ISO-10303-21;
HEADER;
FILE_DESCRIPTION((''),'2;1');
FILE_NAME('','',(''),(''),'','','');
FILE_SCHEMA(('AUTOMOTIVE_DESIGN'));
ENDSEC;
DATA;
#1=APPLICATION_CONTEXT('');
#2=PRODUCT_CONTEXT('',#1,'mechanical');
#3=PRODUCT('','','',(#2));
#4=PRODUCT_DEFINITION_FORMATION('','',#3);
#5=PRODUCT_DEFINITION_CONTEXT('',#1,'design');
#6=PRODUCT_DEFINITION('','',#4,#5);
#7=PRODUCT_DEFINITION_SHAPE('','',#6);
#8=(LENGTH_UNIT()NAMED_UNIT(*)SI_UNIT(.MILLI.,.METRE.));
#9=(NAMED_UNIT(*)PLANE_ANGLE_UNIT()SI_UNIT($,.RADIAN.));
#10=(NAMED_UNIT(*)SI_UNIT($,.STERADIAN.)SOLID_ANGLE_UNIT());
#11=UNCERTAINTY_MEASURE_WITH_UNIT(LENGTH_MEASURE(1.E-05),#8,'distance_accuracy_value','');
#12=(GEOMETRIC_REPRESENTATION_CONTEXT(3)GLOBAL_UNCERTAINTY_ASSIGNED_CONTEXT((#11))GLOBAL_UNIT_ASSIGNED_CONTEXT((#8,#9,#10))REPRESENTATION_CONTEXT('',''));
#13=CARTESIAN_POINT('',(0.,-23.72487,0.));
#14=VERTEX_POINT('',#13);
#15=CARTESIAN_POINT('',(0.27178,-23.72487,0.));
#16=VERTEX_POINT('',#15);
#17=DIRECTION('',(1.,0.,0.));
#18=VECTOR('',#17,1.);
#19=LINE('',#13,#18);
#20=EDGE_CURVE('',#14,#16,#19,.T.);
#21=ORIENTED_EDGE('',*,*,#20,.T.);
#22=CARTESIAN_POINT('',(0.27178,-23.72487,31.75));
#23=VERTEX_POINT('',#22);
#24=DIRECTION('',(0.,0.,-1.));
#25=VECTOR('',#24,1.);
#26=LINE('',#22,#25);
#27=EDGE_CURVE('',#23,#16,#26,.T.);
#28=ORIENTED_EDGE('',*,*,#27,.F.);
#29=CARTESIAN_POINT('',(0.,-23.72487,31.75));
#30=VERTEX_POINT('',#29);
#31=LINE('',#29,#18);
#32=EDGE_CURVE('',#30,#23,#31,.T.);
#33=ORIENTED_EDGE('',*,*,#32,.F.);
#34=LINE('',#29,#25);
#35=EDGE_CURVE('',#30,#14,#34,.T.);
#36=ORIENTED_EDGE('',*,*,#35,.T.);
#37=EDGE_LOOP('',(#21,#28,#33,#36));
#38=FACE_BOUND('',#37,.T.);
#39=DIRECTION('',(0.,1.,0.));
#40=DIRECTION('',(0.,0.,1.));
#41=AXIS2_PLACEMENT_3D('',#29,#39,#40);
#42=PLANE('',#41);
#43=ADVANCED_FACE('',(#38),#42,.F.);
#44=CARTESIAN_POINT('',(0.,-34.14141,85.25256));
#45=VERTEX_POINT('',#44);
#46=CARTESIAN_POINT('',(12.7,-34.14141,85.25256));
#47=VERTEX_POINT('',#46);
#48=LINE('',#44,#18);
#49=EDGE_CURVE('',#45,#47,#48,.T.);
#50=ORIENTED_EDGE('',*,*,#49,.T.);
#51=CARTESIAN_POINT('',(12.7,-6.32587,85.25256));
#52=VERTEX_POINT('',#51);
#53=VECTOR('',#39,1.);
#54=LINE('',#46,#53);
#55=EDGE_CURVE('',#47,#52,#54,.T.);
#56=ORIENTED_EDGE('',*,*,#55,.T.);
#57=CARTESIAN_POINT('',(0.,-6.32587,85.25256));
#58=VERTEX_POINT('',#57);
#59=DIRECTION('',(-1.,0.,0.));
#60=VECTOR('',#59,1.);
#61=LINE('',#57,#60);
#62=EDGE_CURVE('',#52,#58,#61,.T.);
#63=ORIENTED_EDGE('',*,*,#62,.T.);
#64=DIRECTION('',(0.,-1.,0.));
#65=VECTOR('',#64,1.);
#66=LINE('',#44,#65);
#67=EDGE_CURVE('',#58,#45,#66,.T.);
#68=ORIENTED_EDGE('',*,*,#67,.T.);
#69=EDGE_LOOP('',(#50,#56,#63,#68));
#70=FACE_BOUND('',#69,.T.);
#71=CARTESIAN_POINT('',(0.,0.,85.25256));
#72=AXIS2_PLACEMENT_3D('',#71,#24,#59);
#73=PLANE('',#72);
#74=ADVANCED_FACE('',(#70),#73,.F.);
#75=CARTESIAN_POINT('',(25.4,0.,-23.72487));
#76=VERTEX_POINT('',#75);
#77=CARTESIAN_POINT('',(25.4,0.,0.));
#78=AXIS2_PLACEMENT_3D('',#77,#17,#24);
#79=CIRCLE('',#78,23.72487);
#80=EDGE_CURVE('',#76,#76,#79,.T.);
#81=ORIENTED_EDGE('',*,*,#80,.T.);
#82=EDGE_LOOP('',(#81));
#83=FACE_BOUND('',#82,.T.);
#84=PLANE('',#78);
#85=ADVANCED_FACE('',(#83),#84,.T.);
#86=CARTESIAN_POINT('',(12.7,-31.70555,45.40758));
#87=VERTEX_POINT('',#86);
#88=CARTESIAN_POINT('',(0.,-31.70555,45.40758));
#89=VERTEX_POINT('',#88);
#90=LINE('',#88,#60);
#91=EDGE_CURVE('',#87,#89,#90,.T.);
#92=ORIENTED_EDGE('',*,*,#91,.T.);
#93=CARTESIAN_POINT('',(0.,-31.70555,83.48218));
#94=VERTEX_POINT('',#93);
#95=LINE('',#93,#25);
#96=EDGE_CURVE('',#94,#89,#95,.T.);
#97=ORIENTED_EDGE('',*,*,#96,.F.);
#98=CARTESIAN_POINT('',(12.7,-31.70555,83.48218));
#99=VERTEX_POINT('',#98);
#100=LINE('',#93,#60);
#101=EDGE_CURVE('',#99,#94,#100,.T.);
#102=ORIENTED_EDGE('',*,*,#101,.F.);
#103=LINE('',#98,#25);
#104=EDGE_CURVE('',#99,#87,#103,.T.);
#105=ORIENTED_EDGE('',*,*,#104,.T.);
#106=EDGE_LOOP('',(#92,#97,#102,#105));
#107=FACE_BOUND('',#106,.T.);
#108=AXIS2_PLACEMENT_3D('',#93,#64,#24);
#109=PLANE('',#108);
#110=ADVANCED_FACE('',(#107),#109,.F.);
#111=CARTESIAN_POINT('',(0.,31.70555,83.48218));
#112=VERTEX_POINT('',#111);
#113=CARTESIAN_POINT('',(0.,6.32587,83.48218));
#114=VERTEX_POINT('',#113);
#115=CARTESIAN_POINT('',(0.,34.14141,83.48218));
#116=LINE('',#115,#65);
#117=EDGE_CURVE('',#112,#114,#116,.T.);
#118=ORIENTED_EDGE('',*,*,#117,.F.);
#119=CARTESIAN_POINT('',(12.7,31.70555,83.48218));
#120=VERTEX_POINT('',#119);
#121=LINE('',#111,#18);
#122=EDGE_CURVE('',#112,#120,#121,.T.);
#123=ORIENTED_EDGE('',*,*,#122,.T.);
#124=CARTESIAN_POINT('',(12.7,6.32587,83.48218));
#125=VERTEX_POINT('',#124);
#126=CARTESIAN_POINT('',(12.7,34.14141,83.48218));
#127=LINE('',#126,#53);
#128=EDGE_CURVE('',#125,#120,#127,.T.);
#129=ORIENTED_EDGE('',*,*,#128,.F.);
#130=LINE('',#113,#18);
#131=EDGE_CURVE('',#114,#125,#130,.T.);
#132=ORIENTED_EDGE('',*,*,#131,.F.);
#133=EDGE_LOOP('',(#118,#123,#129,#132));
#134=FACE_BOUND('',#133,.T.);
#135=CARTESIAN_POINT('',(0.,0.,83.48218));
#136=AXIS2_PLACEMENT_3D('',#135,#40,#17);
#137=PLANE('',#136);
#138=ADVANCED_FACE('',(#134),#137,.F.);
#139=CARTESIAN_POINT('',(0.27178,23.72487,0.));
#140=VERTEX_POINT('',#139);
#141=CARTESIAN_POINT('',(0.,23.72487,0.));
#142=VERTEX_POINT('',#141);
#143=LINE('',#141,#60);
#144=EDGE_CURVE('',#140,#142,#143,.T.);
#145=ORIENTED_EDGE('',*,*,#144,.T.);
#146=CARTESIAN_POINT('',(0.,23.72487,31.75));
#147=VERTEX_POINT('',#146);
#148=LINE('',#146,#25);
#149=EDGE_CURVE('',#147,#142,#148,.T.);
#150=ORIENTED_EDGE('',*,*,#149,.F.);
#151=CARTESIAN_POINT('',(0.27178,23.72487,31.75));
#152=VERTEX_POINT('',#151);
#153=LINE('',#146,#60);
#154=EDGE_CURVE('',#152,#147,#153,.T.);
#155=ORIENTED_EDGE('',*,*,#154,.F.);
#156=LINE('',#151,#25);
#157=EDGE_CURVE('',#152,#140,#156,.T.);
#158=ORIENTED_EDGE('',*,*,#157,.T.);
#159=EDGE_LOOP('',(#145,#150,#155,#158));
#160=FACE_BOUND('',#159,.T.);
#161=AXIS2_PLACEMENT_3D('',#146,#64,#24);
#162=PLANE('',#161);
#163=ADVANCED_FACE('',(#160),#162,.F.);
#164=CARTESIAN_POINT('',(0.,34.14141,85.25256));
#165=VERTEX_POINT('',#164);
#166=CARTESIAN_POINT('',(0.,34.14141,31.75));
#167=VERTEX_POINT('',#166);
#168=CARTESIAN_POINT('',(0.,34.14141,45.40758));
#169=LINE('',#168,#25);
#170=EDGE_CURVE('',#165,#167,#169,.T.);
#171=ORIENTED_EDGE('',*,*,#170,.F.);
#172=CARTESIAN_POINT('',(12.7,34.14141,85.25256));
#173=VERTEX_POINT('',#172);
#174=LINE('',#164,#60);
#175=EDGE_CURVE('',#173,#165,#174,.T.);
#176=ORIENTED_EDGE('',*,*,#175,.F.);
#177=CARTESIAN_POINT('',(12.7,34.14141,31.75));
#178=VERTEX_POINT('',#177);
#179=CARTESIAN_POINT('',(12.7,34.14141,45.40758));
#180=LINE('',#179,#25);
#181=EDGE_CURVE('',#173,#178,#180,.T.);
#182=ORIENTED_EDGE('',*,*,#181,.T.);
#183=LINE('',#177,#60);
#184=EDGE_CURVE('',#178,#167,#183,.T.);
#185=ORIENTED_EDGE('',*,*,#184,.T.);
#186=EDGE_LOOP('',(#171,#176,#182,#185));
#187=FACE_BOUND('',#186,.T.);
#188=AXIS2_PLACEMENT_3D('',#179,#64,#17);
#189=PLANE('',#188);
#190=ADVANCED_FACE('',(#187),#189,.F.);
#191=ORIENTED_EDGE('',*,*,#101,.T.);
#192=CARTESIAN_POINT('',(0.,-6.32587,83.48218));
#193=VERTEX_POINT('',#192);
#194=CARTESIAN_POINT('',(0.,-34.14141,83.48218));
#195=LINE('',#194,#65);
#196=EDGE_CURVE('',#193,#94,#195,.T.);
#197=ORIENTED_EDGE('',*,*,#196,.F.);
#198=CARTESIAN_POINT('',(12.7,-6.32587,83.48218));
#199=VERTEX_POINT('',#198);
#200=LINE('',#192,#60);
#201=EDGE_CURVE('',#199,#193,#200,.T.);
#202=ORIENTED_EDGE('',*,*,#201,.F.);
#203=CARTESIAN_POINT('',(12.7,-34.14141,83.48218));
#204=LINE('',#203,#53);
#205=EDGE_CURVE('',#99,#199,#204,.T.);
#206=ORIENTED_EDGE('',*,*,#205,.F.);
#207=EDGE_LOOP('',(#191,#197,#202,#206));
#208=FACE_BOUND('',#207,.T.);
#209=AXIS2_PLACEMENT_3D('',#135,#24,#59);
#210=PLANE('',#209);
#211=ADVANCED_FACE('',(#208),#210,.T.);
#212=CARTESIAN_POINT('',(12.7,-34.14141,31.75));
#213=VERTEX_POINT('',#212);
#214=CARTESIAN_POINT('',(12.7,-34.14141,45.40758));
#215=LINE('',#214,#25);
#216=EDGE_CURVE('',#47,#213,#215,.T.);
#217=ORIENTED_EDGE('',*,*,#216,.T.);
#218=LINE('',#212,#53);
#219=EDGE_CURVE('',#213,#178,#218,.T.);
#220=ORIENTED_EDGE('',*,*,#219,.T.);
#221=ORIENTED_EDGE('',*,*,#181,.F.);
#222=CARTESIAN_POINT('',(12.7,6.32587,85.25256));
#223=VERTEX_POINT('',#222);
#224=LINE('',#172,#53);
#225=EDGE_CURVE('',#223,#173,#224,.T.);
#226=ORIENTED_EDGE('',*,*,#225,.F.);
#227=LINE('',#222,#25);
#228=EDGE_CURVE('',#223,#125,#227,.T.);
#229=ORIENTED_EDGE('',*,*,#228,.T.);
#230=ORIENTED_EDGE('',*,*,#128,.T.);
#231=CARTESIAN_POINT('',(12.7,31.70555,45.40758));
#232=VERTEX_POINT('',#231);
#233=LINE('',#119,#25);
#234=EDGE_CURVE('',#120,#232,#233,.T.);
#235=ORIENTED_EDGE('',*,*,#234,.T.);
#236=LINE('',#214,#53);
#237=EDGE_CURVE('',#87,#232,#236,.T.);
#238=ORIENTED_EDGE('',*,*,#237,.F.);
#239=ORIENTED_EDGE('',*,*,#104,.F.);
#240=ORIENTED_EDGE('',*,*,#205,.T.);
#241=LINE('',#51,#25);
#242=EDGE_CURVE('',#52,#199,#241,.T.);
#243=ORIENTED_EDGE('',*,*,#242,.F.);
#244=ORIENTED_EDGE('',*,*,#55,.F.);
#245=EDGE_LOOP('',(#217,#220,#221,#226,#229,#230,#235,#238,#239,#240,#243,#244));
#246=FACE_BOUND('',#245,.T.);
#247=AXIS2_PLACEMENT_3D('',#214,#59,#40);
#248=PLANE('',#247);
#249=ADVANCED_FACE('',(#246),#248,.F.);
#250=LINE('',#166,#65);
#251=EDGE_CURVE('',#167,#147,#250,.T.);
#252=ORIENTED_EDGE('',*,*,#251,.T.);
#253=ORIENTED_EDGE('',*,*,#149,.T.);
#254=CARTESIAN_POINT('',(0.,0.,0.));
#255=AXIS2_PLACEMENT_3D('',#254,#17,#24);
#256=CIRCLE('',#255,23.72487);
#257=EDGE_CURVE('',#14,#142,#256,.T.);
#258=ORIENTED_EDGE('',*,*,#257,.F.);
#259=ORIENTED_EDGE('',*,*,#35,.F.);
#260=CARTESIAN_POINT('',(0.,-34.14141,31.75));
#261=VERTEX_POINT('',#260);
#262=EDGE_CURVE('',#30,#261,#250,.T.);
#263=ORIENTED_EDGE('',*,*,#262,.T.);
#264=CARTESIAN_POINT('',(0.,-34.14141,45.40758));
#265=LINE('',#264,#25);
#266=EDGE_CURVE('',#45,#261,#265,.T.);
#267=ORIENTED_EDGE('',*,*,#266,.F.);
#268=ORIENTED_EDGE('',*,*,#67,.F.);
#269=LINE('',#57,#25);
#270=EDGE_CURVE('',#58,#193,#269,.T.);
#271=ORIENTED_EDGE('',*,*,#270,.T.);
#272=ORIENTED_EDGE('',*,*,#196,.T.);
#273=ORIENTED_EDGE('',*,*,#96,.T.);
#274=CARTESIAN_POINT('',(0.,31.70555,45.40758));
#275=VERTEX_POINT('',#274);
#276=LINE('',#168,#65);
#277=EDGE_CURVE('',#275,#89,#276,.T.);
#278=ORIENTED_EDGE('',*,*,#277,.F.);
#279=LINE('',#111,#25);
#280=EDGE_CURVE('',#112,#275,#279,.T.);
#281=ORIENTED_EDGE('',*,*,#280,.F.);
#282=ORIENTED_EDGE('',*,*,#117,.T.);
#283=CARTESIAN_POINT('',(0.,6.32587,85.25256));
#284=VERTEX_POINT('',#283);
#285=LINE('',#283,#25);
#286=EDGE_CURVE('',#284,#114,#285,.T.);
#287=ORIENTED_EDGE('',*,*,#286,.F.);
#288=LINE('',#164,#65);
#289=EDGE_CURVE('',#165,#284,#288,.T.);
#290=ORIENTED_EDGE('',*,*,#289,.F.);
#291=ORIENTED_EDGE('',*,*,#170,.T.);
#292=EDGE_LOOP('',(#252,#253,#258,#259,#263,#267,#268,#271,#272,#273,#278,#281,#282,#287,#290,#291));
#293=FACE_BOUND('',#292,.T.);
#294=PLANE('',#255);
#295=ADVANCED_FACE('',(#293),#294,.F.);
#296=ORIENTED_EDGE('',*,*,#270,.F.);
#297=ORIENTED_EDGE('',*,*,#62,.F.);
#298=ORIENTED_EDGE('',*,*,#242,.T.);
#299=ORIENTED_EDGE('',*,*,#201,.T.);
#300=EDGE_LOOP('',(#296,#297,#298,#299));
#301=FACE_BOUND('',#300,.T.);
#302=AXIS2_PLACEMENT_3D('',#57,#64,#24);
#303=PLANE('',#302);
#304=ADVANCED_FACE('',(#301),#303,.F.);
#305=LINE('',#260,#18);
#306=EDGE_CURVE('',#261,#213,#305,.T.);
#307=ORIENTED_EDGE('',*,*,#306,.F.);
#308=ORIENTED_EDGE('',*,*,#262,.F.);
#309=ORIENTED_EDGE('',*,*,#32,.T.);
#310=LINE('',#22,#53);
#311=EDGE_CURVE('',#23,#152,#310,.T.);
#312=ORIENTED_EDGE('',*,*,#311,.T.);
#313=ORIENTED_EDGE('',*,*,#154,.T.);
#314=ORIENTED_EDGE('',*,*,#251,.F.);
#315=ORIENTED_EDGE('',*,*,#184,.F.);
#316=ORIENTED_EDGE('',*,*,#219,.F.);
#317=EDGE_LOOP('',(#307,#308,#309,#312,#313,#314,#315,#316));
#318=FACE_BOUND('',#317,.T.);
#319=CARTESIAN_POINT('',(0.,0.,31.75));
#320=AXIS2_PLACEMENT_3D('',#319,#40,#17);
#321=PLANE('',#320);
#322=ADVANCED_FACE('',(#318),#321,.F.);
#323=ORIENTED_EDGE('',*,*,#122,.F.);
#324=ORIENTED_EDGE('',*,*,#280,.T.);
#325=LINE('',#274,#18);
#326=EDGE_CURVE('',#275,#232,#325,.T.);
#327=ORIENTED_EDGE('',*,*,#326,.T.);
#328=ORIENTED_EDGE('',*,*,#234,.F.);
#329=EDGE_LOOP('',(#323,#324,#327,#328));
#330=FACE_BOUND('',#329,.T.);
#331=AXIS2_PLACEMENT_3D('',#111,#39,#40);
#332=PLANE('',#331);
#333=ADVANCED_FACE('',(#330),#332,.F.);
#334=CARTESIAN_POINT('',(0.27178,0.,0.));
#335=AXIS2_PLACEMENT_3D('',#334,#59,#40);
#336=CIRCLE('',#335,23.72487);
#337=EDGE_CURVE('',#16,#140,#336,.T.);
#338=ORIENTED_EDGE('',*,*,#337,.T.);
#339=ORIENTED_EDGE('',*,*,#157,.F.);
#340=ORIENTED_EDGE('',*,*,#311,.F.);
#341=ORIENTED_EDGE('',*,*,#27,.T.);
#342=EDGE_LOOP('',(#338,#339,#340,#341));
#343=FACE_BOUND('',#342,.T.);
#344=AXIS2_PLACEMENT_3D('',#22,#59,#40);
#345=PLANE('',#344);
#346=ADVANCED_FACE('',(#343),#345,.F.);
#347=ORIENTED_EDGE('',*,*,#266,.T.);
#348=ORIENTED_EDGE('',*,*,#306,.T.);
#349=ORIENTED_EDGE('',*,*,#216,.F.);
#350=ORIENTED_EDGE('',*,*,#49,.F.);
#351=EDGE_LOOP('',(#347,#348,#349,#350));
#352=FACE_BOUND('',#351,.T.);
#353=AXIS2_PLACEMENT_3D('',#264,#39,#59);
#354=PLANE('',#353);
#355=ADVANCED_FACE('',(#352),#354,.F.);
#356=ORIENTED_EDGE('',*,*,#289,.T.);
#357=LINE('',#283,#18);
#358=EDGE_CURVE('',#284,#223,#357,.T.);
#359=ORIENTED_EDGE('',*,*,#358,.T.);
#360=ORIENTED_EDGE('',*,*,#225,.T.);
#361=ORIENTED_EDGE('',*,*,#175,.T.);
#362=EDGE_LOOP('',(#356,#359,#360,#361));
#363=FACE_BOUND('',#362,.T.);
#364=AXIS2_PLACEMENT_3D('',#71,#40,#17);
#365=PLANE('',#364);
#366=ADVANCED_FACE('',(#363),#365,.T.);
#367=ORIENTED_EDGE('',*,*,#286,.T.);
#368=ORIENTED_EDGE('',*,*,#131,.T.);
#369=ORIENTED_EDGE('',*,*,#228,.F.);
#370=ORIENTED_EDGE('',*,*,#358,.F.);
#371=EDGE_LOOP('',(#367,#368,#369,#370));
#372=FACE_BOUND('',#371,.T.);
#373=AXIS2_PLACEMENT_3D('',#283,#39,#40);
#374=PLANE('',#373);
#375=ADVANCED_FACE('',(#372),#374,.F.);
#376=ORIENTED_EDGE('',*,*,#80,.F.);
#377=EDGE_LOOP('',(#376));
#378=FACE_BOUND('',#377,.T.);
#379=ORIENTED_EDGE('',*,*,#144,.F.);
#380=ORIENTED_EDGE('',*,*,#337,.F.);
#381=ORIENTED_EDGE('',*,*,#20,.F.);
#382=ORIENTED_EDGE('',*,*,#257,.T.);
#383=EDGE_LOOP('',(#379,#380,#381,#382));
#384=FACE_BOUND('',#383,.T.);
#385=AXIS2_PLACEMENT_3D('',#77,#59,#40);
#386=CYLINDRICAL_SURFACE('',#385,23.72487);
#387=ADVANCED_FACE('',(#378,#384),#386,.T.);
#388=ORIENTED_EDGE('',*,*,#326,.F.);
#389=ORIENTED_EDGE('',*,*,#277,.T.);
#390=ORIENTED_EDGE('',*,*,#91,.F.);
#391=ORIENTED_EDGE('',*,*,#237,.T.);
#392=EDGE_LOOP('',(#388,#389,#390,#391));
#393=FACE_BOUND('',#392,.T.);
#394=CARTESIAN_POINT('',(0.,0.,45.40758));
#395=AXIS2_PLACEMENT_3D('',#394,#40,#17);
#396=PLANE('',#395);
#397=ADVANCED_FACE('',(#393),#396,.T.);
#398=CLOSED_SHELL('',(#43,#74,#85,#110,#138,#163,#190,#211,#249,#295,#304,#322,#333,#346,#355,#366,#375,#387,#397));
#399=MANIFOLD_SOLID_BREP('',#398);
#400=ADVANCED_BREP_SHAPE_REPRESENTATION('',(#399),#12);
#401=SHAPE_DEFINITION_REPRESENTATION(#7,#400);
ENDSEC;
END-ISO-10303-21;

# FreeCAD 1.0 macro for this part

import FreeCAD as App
import Part
import Sketcher
Q = App.Units.Quantity


def add_polygon(sketch, points):
    """Adds a closed chain of lines whose ends are joined by coincident constraints."""
    first, n = sketch.GeometryCount, len(points)
    for a, b in zip(points, points[1:] + points[:1]):
        sketch.addGeometry(Part.LineSegment(App.Vector(*a, 0), App.Vector(*b, 0)), False)
    for i in range(n):
        sketch.addConstraint(Sketcher.Constraint("Coincident", first + i, 2, first + (i + 1) % n, 1))

doc = App.newDocument("Part")
body = doc.addObject("PartDesign::Body", "Body")

sketch1 = body.newObject("Sketcher::SketchObject", "Sketch")
sketch1.AttachmentSupport = (doc.getObject("YZ_Plane"), [""])
sketch1.MapMode = "FlatFace"
sketch1.addGeometry(Part.Circle(App.Vector(0, 0, 0), App.Vector(0, 0, 1), 24), False)
sketch1.addConstraint(Sketcher.Constraint("Coincident", 0, 3, -1, 1))
sketch1.addConstraint(Sketcher.Constraint("Diameter", 0, Q("1.8681 in")))
pad1 = body.newObject("PartDesign::Pad", "Pad")
pad1.Profile = sketch1
pad1.Length = Q("1 in")

sketch2 = body.newObject("Sketcher::SketchObject", "Sketch001")
sketch2.AttachmentSupport = (doc.getObject("XY_Plane"), [""])
sketch2.MapMode = "FlatFace"
add_polygon(sketch2, [(0, -23.72), (0.27, -23.72), (0.27, 23.72), (0, 23.72)])
sketch2.addConstraint(Sketcher.Constraint("Horizontal", 0))
sketch2.addConstraint(Sketcher.Constraint("Vertical", 1))
sketch2.addConstraint(Sketcher.Constraint("Horizontal", 2))
sketch2.addConstraint(Sketcher.Constraint("Vertical", 3))
sketch2.addConstraint(Sketcher.Constraint("Symmetric", 2, 2, 3, 2, -1, 1))
sketch2.addConstraint(Sketcher.Constraint("DistanceX", 0, 1, 0, 2, Q("0.0107 in")))
sketch2.addConstraint(Sketcher.Constraint("DistanceY", 1, 1, 1, 2, Q("1.8681 in")))
pad2 = body.newObject("PartDesign::Pad", "Pad001")
pad2.Profile = sketch2
pad2.Length = Q("1.25 in")

sketch3 = body.newObject("Sketcher::SketchObject", "Sketch002")
sketch3.AttachmentSupport = (doc.getObject("XY_Plane"), [""])
sketch3.MapMode = "FlatFace"
sketch3.AttachmentOffset = App.Placement(App.Vector(0, 0, 1.25 * 25.4), App.Rotation())
add_polygon(sketch3, [(0, 34), (0, -34), (13, -34), (13, 34)])
sketch3.addConstraint(Sketcher.Constraint("Vertical", 0))
sketch3.addConstraint(Sketcher.Constraint("Horizontal", 1))
sketch3.addConstraint(Sketcher.Constraint("Vertical", 2))
sketch3.addConstraint(Sketcher.Constraint("Horizontal", 3))
sketch3.addConstraint(Sketcher.Constraint("Symmetric", 0, 2, 3, 2, -1, 1))
sketch3.addConstraint(Sketcher.Constraint("DistanceX", 1, 1, 1, 2, Q("0.5 in")))
sketch3.addConstraint(Sketcher.Constraint("DistanceY", 0, 2, 0, 1, Q("2.6883 in")))
pad3 = body.newObject("PartDesign::Pad", "Pad002")
pad3.Profile = sketch3
pad3.Length = Q("0.5377 in")

sketch4 = body.newObject("Sketcher::SketchObject", "Sketch003")
sketch4.AttachmentSupport = (doc.getObject("XY_Plane"), [""])
sketch4.MapMode = "FlatFace"
sketch4.AttachmentOffset = App.Placement(App.Vector(0, 0, 1.7877 * 25.4), App.Rotation())
add_polygon(sketch4, [(0, 34.1), (0, 31.7), (12.7, 31.7), (12.7, 34.1)])
add_polygon(sketch4, [(0, -31.7), (0, -34.1), (12.7, -34.1), (12.7, -31.7)])
sketch4.addConstraint(Sketcher.Constraint("Vertical", 0))
sketch4.addConstraint(Sketcher.Constraint("Horizontal", 1))
sketch4.addConstraint(Sketcher.Constraint("Vertical", 2))
sketch4.addConstraint(Sketcher.Constraint("Horizontal", 3))
sketch4.addConstraint(Sketcher.Constraint("Vertical", 4))
sketch4.addConstraint(Sketcher.Constraint("Horizontal", 5))
sketch4.addConstraint(Sketcher.Constraint("Vertical", 6))
sketch4.addConstraint(Sketcher.Constraint("Horizontal", 7))
sketch4.addConstraint(Sketcher.Constraint("Symmetric", 3, 2, 4, 2, -1, 1))
sketch4.addConstraint(Sketcher.Constraint("Symmetric", 1, 2, 6, 2, -1))
sketch4.addConstraint(Sketcher.Constraint("PointOnObject", 0, 2, -2))
sketch4.addConstraint(Sketcher.Constraint("DistanceX", 1, 1, 1, 2, Q("0.5 in")))
sketch4.addConstraint(Sketcher.Constraint("DistanceY", 0, 2, 0, 1, Q("0.0959 in")))
sketch4.addConstraint(Sketcher.Constraint("DistanceY", 4, 2, 0, 2, Q("2.5924 in")))
pad4 = body.newObject("PartDesign::Pad", "Pad003")
pad4.Profile = sketch4
pad4.Length = Q("1.499 in")

sketch5 = body.newObject("Sketcher::SketchObject", "Sketch004")
sketch5.AttachmentSupport = (doc.getObject("XY_Plane"), [""])
sketch5.MapMode = "FlatFace"
sketch5.AttachmentOffset = App.Placement(App.Vector(0, 0, 3.2867 * 25.4), App.Rotation())
add_polygon(sketch5, [(0, 34), (0, 6), (13, 6), (13, 34)])
add_polygon(sketch5, [(0, -6), (0, -34), (13, -34), (13, -6)])
sketch5.addConstraint(Sketcher.Constraint("Vertical", 0))
sketch5.addConstraint(Sketcher.Constraint("Horizontal", 1))
sketch5.addConstraint(Sketcher.Constraint("Vertical", 2))
sketch5.addConstraint(Sketcher.Constraint("Horizontal", 3))
sketch5.addConstraint(Sketcher.Constraint("Vertical", 4))
sketch5.addConstraint(Sketcher.Constraint("Horizontal", 5))
sketch5.addConstraint(Sketcher.Constraint("Vertical", 6))
sketch5.addConstraint(Sketcher.Constraint("Horizontal", 7))
sketch5.addConstraint(Sketcher.Constraint("Symmetric", 3, 2, 4, 2, -1, 1))
sketch5.addConstraint(Sketcher.Constraint("Symmetric", 1, 2, 6, 2, -1))
sketch5.addConstraint(Sketcher.Constraint("PointOnObject", 0, 2, -2))
sketch5.addConstraint(Sketcher.Constraint("DistanceX", 1, 1, 1, 2, Q("0.5 in")))
sketch5.addConstraint(Sketcher.Constraint("DistanceY", 0, 2, 0, 1, Q("1.0951 in")))
sketch5.addConstraint(Sketcher.Constraint("DistanceY", 4, 2, 0, 2, Q("1.5932 in")))
pad5 = body.newObject("PartDesign::Pad", "Pad004")
pad5.Profile = sketch5
pad5.Length = Q("0.0697 in")

doc.recompute()
